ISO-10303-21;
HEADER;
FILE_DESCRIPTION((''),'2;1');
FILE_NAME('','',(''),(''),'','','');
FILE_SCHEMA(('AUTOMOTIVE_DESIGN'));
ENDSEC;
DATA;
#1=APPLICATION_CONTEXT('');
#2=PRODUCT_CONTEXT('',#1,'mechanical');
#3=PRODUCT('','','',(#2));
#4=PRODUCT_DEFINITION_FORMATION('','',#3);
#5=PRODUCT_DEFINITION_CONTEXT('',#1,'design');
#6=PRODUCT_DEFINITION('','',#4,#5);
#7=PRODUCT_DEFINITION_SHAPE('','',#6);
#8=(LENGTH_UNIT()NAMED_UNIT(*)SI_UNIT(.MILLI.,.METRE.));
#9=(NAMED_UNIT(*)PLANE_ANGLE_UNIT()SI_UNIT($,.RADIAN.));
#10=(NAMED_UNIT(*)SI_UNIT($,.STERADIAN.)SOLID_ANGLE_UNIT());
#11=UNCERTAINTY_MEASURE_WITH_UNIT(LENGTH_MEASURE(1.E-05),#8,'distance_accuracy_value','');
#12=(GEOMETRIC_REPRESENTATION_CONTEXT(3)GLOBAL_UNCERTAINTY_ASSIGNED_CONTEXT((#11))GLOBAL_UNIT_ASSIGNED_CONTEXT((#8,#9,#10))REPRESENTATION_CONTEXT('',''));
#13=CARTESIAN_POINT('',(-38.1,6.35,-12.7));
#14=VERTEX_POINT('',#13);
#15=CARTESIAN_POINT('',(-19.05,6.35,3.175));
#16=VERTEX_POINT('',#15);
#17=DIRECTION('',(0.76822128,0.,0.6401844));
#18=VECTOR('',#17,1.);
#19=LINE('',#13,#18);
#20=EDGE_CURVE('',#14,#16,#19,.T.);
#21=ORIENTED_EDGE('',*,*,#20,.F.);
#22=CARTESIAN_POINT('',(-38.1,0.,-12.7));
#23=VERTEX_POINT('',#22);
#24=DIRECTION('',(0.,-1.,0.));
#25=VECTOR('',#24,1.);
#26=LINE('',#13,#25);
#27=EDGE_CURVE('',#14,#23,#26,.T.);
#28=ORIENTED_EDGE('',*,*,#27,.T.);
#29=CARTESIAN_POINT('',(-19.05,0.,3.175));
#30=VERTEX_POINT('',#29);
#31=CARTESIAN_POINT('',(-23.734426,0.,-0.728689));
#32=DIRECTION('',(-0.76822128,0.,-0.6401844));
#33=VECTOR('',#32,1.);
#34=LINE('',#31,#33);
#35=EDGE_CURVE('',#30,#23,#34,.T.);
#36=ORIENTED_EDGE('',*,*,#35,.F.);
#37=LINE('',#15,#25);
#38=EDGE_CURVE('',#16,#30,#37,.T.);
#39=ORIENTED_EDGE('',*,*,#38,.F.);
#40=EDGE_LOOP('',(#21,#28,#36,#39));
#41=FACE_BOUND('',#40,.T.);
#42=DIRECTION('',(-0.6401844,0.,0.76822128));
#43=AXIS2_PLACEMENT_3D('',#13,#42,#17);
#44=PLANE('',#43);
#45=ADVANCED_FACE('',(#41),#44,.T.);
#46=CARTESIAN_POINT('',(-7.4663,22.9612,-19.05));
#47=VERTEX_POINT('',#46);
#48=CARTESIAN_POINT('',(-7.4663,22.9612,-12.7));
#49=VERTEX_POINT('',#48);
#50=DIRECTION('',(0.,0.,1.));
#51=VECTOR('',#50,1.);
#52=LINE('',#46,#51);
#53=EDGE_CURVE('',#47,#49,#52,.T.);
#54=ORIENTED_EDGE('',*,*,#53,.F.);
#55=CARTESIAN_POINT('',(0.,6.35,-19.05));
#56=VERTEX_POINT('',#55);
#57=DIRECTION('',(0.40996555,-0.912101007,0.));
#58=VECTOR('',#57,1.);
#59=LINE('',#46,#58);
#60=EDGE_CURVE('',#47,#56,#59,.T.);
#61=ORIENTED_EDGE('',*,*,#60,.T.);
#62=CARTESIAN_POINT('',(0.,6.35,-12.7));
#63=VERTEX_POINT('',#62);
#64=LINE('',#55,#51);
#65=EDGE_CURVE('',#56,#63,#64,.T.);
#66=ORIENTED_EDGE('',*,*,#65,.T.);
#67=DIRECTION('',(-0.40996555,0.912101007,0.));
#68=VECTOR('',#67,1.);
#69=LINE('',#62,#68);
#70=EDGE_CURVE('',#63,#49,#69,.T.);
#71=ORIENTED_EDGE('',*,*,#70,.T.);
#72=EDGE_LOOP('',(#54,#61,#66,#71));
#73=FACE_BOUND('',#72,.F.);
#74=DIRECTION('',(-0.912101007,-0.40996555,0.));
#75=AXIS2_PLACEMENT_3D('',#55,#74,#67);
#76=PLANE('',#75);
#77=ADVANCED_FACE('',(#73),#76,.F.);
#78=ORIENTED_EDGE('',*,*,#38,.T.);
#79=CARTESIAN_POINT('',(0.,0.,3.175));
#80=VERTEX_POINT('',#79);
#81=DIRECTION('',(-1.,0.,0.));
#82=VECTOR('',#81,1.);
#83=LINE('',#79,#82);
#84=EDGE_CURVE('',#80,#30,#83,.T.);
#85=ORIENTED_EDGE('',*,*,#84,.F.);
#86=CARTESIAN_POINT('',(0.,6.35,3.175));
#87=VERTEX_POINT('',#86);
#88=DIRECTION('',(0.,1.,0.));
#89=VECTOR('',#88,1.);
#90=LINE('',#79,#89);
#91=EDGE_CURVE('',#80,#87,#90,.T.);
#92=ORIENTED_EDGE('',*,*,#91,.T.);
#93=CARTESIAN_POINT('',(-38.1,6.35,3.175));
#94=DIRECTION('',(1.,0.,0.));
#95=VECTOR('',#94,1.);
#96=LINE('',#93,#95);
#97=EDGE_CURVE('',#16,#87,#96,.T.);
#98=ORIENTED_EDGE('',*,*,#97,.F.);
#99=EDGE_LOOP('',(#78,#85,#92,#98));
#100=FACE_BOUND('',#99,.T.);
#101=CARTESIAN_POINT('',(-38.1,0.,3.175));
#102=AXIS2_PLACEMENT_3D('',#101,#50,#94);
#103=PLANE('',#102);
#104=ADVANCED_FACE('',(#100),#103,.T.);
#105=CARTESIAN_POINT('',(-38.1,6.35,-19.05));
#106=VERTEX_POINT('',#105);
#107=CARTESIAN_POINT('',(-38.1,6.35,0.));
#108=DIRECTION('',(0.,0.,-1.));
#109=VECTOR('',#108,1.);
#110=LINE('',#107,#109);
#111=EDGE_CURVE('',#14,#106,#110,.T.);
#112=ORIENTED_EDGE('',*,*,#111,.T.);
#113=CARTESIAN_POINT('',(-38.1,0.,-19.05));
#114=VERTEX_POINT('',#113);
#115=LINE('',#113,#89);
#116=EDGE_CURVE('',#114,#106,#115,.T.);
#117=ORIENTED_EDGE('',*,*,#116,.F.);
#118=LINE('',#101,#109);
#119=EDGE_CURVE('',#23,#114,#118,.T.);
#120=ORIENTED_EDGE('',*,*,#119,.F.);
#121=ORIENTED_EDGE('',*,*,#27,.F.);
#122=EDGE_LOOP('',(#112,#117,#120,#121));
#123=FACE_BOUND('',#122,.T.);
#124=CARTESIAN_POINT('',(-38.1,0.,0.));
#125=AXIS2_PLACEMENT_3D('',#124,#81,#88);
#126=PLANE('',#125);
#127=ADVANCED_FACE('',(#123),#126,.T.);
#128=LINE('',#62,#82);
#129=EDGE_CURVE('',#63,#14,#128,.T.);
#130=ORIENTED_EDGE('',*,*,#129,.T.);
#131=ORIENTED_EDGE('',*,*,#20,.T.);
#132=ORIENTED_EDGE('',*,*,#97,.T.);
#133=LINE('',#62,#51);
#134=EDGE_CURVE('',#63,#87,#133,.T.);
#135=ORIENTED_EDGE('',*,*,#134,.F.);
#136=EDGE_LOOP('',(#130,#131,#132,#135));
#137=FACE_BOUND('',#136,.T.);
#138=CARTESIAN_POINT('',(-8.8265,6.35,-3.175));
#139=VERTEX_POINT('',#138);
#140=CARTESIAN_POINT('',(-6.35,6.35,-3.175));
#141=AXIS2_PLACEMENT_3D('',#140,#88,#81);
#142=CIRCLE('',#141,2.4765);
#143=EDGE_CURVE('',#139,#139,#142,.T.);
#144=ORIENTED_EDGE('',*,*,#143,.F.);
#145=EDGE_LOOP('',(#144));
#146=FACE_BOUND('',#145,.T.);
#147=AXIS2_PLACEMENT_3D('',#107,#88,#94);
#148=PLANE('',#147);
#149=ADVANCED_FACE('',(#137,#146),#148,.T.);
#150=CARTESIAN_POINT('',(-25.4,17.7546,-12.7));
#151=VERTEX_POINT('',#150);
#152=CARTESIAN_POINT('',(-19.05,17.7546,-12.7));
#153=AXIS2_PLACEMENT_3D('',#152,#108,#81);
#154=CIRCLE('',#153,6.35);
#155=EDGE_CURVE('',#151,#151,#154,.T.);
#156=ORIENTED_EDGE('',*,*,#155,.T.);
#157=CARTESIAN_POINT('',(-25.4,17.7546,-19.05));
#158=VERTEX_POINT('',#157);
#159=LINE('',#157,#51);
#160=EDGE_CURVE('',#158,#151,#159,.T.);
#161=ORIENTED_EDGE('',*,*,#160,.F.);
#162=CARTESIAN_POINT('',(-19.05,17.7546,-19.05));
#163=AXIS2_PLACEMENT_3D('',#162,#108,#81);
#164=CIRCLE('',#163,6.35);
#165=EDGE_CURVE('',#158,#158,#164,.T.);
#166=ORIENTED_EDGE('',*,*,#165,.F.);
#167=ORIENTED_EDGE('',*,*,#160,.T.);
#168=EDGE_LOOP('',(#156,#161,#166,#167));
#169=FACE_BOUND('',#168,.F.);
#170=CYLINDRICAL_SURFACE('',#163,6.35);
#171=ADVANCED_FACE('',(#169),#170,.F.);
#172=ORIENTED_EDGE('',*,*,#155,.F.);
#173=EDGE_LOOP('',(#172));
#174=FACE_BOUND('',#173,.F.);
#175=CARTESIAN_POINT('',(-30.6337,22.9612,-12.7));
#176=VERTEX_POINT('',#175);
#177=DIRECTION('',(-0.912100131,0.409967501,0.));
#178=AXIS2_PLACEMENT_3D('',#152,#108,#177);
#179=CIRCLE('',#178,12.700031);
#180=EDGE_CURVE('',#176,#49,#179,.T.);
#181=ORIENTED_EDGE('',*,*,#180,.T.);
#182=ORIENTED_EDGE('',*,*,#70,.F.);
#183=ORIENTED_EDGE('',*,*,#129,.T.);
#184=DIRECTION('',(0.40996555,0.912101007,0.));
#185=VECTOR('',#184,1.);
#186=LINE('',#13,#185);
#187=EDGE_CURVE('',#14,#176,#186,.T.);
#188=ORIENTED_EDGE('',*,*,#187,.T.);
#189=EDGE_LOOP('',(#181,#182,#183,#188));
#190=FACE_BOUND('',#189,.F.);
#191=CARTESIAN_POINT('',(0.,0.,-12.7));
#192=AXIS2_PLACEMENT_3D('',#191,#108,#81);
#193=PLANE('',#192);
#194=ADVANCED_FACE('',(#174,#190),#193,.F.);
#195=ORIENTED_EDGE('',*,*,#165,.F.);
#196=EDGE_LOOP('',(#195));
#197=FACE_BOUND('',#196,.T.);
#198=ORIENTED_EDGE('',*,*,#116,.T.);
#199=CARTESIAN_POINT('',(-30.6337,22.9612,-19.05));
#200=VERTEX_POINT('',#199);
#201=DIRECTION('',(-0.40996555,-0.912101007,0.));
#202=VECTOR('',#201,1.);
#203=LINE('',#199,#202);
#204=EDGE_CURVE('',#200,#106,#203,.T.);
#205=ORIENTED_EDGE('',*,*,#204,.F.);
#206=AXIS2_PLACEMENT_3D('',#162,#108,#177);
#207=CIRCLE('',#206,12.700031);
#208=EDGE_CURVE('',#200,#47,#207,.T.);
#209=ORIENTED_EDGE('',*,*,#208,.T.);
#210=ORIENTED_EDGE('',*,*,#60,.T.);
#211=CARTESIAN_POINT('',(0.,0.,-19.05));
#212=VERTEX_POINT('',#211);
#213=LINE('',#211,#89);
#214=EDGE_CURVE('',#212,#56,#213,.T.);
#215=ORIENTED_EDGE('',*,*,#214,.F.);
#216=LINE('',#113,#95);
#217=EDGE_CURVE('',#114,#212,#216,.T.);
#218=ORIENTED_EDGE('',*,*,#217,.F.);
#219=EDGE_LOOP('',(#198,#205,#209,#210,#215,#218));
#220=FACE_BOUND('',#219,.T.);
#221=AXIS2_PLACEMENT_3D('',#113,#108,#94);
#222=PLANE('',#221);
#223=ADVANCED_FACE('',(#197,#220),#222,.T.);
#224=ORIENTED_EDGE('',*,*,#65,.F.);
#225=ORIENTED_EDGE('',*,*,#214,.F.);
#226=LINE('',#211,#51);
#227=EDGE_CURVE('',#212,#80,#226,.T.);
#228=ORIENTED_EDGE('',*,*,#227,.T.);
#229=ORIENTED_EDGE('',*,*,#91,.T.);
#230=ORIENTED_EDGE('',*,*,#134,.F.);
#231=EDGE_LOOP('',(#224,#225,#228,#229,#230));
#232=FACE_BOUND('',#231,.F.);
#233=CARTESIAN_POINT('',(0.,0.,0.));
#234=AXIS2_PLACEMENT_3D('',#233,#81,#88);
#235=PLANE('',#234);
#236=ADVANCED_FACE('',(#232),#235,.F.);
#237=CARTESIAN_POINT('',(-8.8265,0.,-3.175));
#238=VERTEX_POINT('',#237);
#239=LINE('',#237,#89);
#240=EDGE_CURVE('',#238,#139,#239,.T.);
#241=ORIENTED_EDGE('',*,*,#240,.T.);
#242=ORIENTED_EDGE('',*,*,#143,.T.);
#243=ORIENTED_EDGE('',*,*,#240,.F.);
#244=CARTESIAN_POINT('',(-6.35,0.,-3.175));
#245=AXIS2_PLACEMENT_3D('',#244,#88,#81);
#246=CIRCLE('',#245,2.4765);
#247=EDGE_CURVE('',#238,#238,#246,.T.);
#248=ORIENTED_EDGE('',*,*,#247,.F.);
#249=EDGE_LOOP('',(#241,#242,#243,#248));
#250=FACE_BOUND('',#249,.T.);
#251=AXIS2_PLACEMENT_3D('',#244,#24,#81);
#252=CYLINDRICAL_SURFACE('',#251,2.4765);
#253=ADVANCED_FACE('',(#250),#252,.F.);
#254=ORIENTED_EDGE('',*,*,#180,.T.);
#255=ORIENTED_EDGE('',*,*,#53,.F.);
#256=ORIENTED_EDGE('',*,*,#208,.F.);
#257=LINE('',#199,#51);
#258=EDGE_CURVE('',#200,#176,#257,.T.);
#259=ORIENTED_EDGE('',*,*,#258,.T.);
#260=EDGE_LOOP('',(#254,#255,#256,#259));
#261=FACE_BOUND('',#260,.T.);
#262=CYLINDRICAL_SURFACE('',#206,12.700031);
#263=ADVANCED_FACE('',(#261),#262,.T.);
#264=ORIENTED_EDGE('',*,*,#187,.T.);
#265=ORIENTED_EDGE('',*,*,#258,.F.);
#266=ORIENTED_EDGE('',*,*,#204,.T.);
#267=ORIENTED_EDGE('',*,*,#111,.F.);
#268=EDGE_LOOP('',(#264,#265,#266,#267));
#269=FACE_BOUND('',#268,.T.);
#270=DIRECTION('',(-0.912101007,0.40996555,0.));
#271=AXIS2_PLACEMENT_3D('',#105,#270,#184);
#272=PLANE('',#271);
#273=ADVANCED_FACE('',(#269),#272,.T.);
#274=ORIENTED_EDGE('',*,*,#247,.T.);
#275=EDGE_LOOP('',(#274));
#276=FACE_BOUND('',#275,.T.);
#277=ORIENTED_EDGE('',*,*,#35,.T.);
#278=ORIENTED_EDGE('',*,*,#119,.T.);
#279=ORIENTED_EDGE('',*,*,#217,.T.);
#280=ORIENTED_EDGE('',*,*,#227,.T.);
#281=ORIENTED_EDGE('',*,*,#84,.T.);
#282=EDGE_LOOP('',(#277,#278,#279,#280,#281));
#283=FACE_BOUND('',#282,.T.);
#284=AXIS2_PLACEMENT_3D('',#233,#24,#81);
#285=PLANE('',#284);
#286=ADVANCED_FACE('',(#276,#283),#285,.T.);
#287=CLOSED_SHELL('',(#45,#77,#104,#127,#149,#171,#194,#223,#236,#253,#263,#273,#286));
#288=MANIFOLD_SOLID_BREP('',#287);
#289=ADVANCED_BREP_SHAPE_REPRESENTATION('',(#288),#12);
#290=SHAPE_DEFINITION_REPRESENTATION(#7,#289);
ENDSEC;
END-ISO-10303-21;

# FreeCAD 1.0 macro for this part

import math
import FreeCAD as App
import Part
import Sketcher
from FreeCAD import Vector
Q = App.Units.Quantity


def add_polygon(sketch, points):
    """Adds a closed chain of lines whose ends are joined by coincident constraints."""
    first, n = sketch.GeometryCount, len(points)
    for a, b in zip(points, points[1:] + points[:1]):
        sketch.addGeometry(Part.LineSegment(App.Vector(*a, 0), App.Vector(*b, 0)), False)
    for i in range(n):
        sketch.addConstraint(Sketcher.Constraint("Coincident", first + i, 2, first + (i + 1) % n, 1))

doc = App.newDocument("Part")
body = doc.addObject("PartDesign::Body", "Body")

sketch1 = body.newObject("Sketcher::SketchObject", "Sketch")
sketch1.AttachmentSupport = (doc.getObject("XZ_Plane"), [""])
sketch1.MapMode = "FlatFace"
add_polygon(sketch1, [(-38.1, 0), (0, 0), (0, -19.1), (-38.1, -19.1)])
sketch1.addGeometry(Part.Circle(Vector(-6.3, -3.2, 0), Vector(0, 0, 1), 2.5), False)
sketch1.addGeometry(Part.Circle(Vector(-31.8, -3.2, 0), Vector(0, 0, 1), 2.5), False)
sketch1.addConstraint(Sketcher.Constraint("Horizontal", 0))
sketch1.addConstraint(Sketcher.Constraint("Vertical", 1))
sketch1.addConstraint(Sketcher.Constraint("Horizontal", 2))
sketch1.addConstraint(Sketcher.Constraint("Vertical", 3))
sketch1.addConstraint(Sketcher.Constraint("Coincident", 0, 2, -1, 1))
sketch1.addConstraint(Sketcher.Constraint("Equal", 4, 5))
sketch1.addConstraint(Sketcher.Constraint("Horizontal", 4, 3, 5, 3))
sketch1.addConstraint(Sketcher.Constraint("Diameter", 4, Q("0.195 in")))
sketch1.addConstraint(Sketcher.Constraint("DistanceX", 5, 3, 4, 3, Q("1 in")))
sketch1.addConstraint(Sketcher.Constraint("DistanceY", 1, 2, 1, 1, Q("0.75 in")))
sketch1.addConstraint(Sketcher.Constraint("DistanceX", 4, 3, -1, 1, Q("0.25 in")))
sketch1.addConstraint(Sketcher.Constraint("DistanceX", 2, 2, 5, 3, Q("0.25 in")))
sketch1.addConstraint(Sketcher.Constraint("DistanceY", 4, 3, -1, 1, Q("0.125 in")))
pad1 = body.newObject("PartDesign::Pad", "Pad")
pad1.Profile = sketch1
pad1.Length = Q("0.25 in")
pad1.Reversed = True

sketch2 = body.newObject("Sketcher::SketchObject", "Sketch001")
sketch2.AttachmentSupport = (doc.getObject("XY_Plane"), [""])
sketch2.MapMode = "FlatFace"
sketch2.AttachmentOffset = App.Placement(Vector(0, 0, -0.75 * 25.4), App.Rotation())
sketch2.addGeometry(Part.LineSegment(Vector(-38, 6, 0), Vector(-31, 23, 0)), False)
sketch2.addGeometry(Part.ArcOfCircle(Part.Circle(Vector(-19, 18, 0), Vector(0, 0, 1), 13), math.radians(24), math.radians(156)), False)
sketch2.addGeometry(Part.LineSegment(Vector(-7, 23, 0), Vector(0, 6, 0)), False)
sketch2.addGeometry(Part.LineSegment(Vector(0, 6, 0), Vector(-38, 6, 0)), False)
sketch2.addGeometry(Part.Circle(Vector(-19, 18, 0), Vector(0, 0, 1), 6), False)
sketch2.addConstraint(Sketcher.Constraint("Tangent", 0, 2, 1, 2))
sketch2.addConstraint(Sketcher.Constraint("Tangent", 1, 1, 2, 1))
sketch2.addConstraint(Sketcher.Constraint("Coincident", 2, 2, 3, 1))
sketch2.addConstraint(Sketcher.Constraint("Coincident", 3, 2, 0, 1))
sketch2.addConstraint(Sketcher.Constraint("Horizontal", 3))
sketch2.addConstraint(Sketcher.Constraint("Coincident", 4, 3, 1, 3))
sketch2.addConstraint(Sketcher.Constraint("PointOnObject", 2, 2, -2))
sketch2.addConstraint(Sketcher.Constraint("Horizontal", 0, 2, 1, 1))
sketch2.addConstraint(Sketcher.Constraint("Diameter", 4, Q("0.5 in")))
sketch2.addConstraint(Sketcher.Constraint("Radius", 1, Q("0.5 in")))
sketch2.addConstraint(Sketcher.Constraint("DistanceY", -1, 1, 2, 2, Q("0.25 in")))
sketch2.addConstraint(Sketcher.Constraint("DistanceX", 3, 2, 3, 1, Q("1.5 in")))
sketch2.addConstraint(Sketcher.Constraint("Distance", 0, Q("0.717 in")))
pad2 = body.newObject("PartDesign::Pad", "Pad001")
pad2.Profile = sketch2
pad2.Length = Q("0.25 in")

sketch3 = body.newObject("Sketcher::SketchObject", "Sketch002")
sketch3.AttachmentSupport = (doc.getObject("XY_Plane"), [""])
sketch3.MapMode = "FlatFace"
add_polygon(sketch3, [(-38, 0), (0, 0), (0, 6), (-38, 6)])
sketch3.addConstraint(Sketcher.Constraint("Horizontal", 0))
sketch3.addConstraint(Sketcher.Constraint("Vertical", 1))
sketch3.addConstraint(Sketcher.Constraint("Horizontal", 2))
sketch3.addConstraint(Sketcher.Constraint("Vertical", 3))
sketch3.addConstraint(Sketcher.Constraint("Coincident", 0, 2, -1, 1))
sketch3.addConstraint(Sketcher.Constraint("DistanceX", 0, 1, 0, 2, Q("1.5 in")))
sketch3.addConstraint(Sketcher.Constraint("DistanceY", 1, 1, 1, 2, Q("0.25 in")))
pad3 = body.newObject("PartDesign::Pad", "Pad002")
pad3.Profile = sketch3
pad3.Length = Q("0.125 in")

sketch4 = body.newObject("Sketcher::SketchObject", "Sketch003")
sketch4.AttachmentSupport = (doc.getObject("XZ_Plane"), [""])
sketch4.MapMode = "FlatFace"
sketch4.AttachmentOffset = App.Placement(Vector(0, 0, -0.25 * 25.4), App.Rotation())
add_polygon(sketch4, [(-19.1, 3.2), (-38.1, -12.7), (-38.1, 3.2)])
sketch4.addGeometry(Part.Circle(Vector(-31.8, -3.2, 0), Vector(0, 0, 1), 2.5), False)
sketch4.addConstraint(Sketcher.Constraint("Vertical", 1))
sketch4.addConstraint(Sketcher.Constraint("Horizontal", 2))
sketch4.addConstraint(Sketcher.Constraint("Diameter", 3, Q("0.195 in")))
sketch4.addConstraint(Sketcher.Constraint("DistanceX", 2, 1, 2, 2, Q("0.75 in")))
sketch4.addConstraint(Sketcher.Constraint("DistanceX", 0, 2, -1, 1, Q("1.5 in")))
sketch4.addConstraint(Sketcher.Constraint("DistanceY", 0, 2, -1, 1, Q("0.5 in")))
sketch4.addConstraint(Sketcher.Constraint("DistanceX", 3, 3, 2, 2, Q("0.5 in")))
sketch4.addConstraint(Sketcher.Constraint("DistanceY", 1, 1, 1, 2, Q("0.625 in")))
sketch4.addConstraint(Sketcher.Constraint("DistanceY", 3, 3, 1, 2, Q("0.25 in")))
pocket1 = body.newObject("PartDesign::Pocket", "Pocket")
pocket1.Profile = sketch4
pocket1.Length = Q("1 in")
pocket1.Reversed = True

doc.recompute()
